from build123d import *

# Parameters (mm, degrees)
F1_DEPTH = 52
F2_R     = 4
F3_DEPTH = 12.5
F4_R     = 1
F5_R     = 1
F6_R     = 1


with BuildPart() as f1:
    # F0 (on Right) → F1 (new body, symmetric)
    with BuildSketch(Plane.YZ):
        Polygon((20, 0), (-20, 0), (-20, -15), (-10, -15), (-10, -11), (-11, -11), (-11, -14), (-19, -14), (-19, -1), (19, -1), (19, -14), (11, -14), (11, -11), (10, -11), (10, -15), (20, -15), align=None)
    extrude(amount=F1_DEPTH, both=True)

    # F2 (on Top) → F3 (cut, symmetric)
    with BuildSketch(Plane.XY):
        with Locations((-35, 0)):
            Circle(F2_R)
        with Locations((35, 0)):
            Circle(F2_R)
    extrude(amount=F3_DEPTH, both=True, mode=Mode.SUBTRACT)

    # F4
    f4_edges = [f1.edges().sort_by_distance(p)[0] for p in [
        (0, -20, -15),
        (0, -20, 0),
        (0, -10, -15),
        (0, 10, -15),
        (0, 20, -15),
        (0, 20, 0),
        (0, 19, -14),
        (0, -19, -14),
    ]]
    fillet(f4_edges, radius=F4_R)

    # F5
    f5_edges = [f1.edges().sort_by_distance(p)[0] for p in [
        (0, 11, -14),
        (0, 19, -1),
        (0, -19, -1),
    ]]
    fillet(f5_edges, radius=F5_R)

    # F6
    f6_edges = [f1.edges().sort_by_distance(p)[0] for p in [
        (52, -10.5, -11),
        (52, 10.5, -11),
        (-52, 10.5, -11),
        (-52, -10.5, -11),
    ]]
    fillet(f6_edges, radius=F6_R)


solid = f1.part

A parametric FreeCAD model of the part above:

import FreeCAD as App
import Part
import Sketcher

V = App.Vector


def edges_at(feature, points):
    """Names of the edges that pass closest to the given points."""
    edges = feature.Shape.Edges
    near = lambda p: min(range(len(edges)), key=lambda i: edges[i].distToShape(Part.Vertex(*p))[0])
    return sorted({f"Edge{near(p) + 1}" for p in points})

doc = App.newDocument("Part")
body = doc.addObject("PartDesign::Body", "Body")

# Sketch on YZ plane
sketch1 = doc.addObject("Sketcher::SketchObject", "Sketch")
body.addObject(sketch1)
sketch1.AttachmentSupport = (doc.YZ_Plane, [""])
sketch1.MapMode = "FlatFace"
sketch1.addGeometry([
    Part.LineSegment(V(20, 0, 0), V(-20, 0, 0)),  # 0
    Part.LineSegment(V(-20, 0, 0), V(-20, -15, 0)),  # 1
    Part.LineSegment(V(-20, -15, 0), V(-10, -15, 0)),  # 2
    Part.LineSegment(V(-10, -15, 0), V(-10, -11, 0)),  # 3
    Part.LineSegment(V(-10, -11, 0), V(-11, -11, 0)),  # 4
    Part.LineSegment(V(-11, -11, 0), V(-11, -14, 0)),  # 5
    Part.LineSegment(V(-11, -14, 0), V(-19, -14, 0)),  # 6
    Part.LineSegment(V(-19, -14, 0), V(-19, -1, 0)),  # 7
    Part.LineSegment(V(-19, -1, 0), V(19, -1, 0)),  # 8
    Part.LineSegment(V(19, -1, 0), V(19, -14, 0)),  # 9
    Part.LineSegment(V(19, -14, 0), V(11, -14, 0)),  # 10
    Part.LineSegment(V(11, -14, 0), V(11, -11, 0)),  # 11
    Part.LineSegment(V(11, -11, 0), V(10, -11, 0)),  # 12
    Part.LineSegment(V(10, -11, 0), V(10, -15, 0)),  # 13
    Part.LineSegment(V(10, -15, 0), V(20, -15, 0)),  # 14
    Part.LineSegment(V(20, -15, 0), V(20, 0, 0)),  # 15
], False)
sketch1.addConstraint([
    Sketcher.Constraint("Coincident", 0, 2, 1, 1),
    Sketcher.Constraint("Coincident", 1, 2, 2, 1),
    Sketcher.Constraint("Coincident", 2, 2, 3, 1),
    Sketcher.Constraint("Coincident", 3, 2, 4, 1),
    Sketcher.Constraint("Coincident", 4, 2, 5, 1),
    Sketcher.Constraint("Coincident", 5, 2, 6, 1),
    Sketcher.Constraint("Coincident", 6, 2, 7, 1),
    Sketcher.Constraint("Coincident", 7, 2, 8, 1),
    Sketcher.Constraint("Coincident", 8, 2, 9, 1),
    Sketcher.Constraint("Coincident", 9, 2, 10, 1),
    Sketcher.Constraint("Coincident", 10, 2, 11, 1),
    Sketcher.Constraint("Coincident", 11, 2, 12, 1),
    Sketcher.Constraint("Coincident", 12, 2, 13, 1),
    Sketcher.Constraint("Coincident", 13, 2, 14, 1),
    Sketcher.Constraint("Coincident", 14, 2, 15, 1),
    Sketcher.Constraint("Coincident", 15, 2, 0, 1),
    Sketcher.Constraint("Horizontal", 0),
    Sketcher.Constraint("Vertical", 1),
    Sketcher.Constraint("Horizontal", 2),
    Sketcher.Constraint("Vertical", 3),
    Sketcher.Constraint("Horizontal", 4),
    Sketcher.Constraint("Vertical", 5),
    Sketcher.Constraint("Horizontal", 6),
    Sketcher.Constraint("Vertical", 7),
    Sketcher.Constraint("Horizontal", 8),
    Sketcher.Constraint("Vertical", 9),
    Sketcher.Constraint("Horizontal", 10),
    Sketcher.Constraint("Vertical", 11),
    Sketcher.Constraint("Horizontal", 12),
    Sketcher.Constraint("Vertical", 13),
    Sketcher.Constraint("Horizontal", 14),
    Sketcher.Constraint("Vertical", 15),
    Sketcher.Constraint("Symmetric", 0, 2, 15, 2, -1, 1),
    Sketcher.Constraint("Symmetric", 6, 2, 9, 2, -2),
    Sketcher.Constraint("Symmetric", 4, 2, 11, 2, -2),
    Sketcher.Constraint("Symmetric", 2, 2, 13, 2, -2),
    Sketcher.Constraint("DistanceX", 0, 2, 0, 1, 40.0),
    Sketcher.Constraint("DistanceX", 2, 1, 2, 2, 10.0),
    Sketcher.Constraint("DistanceX", 4, 2, 4, 1, 1.0),
    Sketcher.Constraint("DistanceX", 6, 2, 6, 1, 8.0),
    Sketcher.Constraint("DistanceY", 1, 2, 1, 1, 15.0),
    Sketcher.Constraint("DistanceY", 3, 1, 3, 2, 4.0),
    Sketcher.Constraint("DistanceY", 5, 2, 5, 1, 3.0),
    Sketcher.Constraint("DistanceY", 7, 1, 7, 2, 13.0),
])
pad1 = doc.addObject("PartDesign::Pad", "Pad")
body.addObject(pad1)
pad1.Profile = sketch1
pad1.Length = 104
pad1.Midplane = True

# Sketch on XY plane
sketch2 = doc.addObject("Sketcher::SketchObject", "Sketch001")
body.addObject(sketch2)
sketch2.AttachmentSupport = (doc.XY_Plane, [""])
sketch2.MapMode = "FlatFace"
sketch2.addGeometry([
    Part.Circle(V(-35, 0, 0), V(0, 0, 1), 4),
    Part.Circle(V(35, 0, 0), V(0, 0, 1), 4),
], False)
sketch2.addConstraint([
    Sketcher.Constraint("Equal", 0, 1),
    Sketcher.Constraint("Symmetric", 0, 3, 1, 3, -1, 1),
    Sketcher.Constraint("PointOnObject", 0, 3, -1),
    Sketcher.Constraint("Diameter", 0, 8.0),
    Sketcher.Constraint("DistanceX", 0, 3, -1, 1, 35.0),
])
pocket1 = doc.addObject("PartDesign::Pocket", "Pocket")
body.addObject(pocket1)
pocket1.Profile = sketch2
pocket1.Length = 25
pocket1.Midplane = True
doc.recompute()

fillet = doc.addObject("PartDesign::Fillet", "Fillet")
body.addObject(fillet)
fillet.Base = (pocket1, edges_at(pocket1, [
    (0, -20, -15),
    (0, -20, 0),
    (0, -10, -15),
    (0, 10, -15),
    (0, 20, -15),
    (0, 20, 0),
    (0, 19, -14),
    (0, -19, -14),
]))
fillet.Radius = 1
doc.recompute()

fillet2 = doc.addObject("PartDesign::Fillet", "Fillet001")
body.addObject(fillet2)
fillet2.Base = (fillet, edges_at(fillet, [(0, 11, -14), (0, 19, -1), (0, -19, -1)]))
fillet2.Radius = 1
doc.recompute()

fillet3 = doc.addObject("PartDesign::Fillet", "Fillet002")
body.addObject(fillet3)
fillet3.Base = (fillet2, edges_at(fillet2, [
    (52, -10.5, -11),
    (52, 10.5, -11),
    (-52, 10.5, -11),
    (-52, -10.5, -11),
]))
fillet3.Radius = 1

doc.recompute()
